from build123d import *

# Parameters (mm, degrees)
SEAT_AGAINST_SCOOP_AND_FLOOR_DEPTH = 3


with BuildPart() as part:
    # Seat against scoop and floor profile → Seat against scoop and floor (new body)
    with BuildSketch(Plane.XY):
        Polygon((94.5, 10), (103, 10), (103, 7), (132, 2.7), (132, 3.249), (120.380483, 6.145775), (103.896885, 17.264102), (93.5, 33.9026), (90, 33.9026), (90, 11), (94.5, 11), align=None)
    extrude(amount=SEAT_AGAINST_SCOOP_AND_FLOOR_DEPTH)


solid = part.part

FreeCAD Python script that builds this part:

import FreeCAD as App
import Part
import Sketcher
from FreeCAD import Vector
Q = App.Units.Quantity

doc = App.newDocument("Part")
body = doc.addObject("PartDesign::Body", "Body")

# Sketch on XY plane
sketch1 = doc.addObject("Sketcher::SketchObject", "Sketch")
body.addObject(sketch1)
sketch1.AttachmentSupport = (doc.XY_Plane, [""])
sketch1.MapMode = "FlatFace"
sketch1.addGeometry(Part.LineSegment(Vector(94.5, 10, 0), Vector(103, 10, 0)), False)
sketch1.addGeometry(Part.LineSegment(Vector(103, 10, 0), Vector(103, 7, 0)), False)
sketch1.addGeometry(Part.LineSegment(Vector(103, 7, 0), Vector(132, 2.7, 0)), False)
sketch1.addGeometry(Part.LineSegment(Vector(132, 2.7, 0), Vector(132, 3.249, 0)), False)
sketch1.addGeometry(Part.LineSegment(Vector(132, 3.249, 0), Vector(120.380483, 6.145775, 0)), False)
sketch1.addGeometry(Part.LineSegment(Vector(120.380483, 6.145775, 0), Vector(103.896885, 17.264102, 0)), False)
sketch1.addGeometry(Part.LineSegment(Vector(103.896885, 17.264102, 0), Vector(93.5, 33.9026, 0)), False)
sketch1.addGeometry(Part.LineSegment(Vector(93.5, 33.9026, 0), Vector(90, 33.9026, 0)), False)
sketch1.addGeometry(Part.LineSegment(Vector(90, 33.9026, 0), Vector(90, 11, 0)), False)
sketch1.addGeometry(Part.LineSegment(Vector(90, 11, 0), Vector(94.5, 11, 0)), False)
sketch1.addGeometry(Part.LineSegment(Vector(94.5, 11, 0), Vector(94.5, 10, 0)), False)
sketch1.addConstraint(Sketcher.Constraint("Coincident", 0, 2, 1, 1))
sketch1.addConstraint(Sketcher.Constraint("Coincident", 1, 2, 2, 1))
sketch1.addConstraint(Sketcher.Constraint("Coincident", 2, 2, 3, 1))
sketch1.addConstraint(Sketcher.Constraint("Coincident", 3, 2, 4, 1))
sketch1.addConstraint(Sketcher.Constraint("Coincident", 4, 2, 5, 1))
sketch1.addConstraint(Sketcher.Constraint("Coincident", 5, 2, 6, 1))
sketch1.addConstraint(Sketcher.Constraint("Coincident", 6, 2, 7, 1))
sketch1.addConstraint(Sketcher.Constraint("Coincident", 7, 2, 8, 1))
sketch1.addConstraint(Sketcher.Constraint("Coincident", 8, 2, 9, 1))
sketch1.addConstraint(Sketcher.Constraint("Coincident", 9, 2, 10, 1))
sketch1.addConstraint(Sketcher.Constraint("Coincident", 10, 2, 0, 1))
sketch1.addConstraint(Sketcher.Constraint("Horizontal", 0))
sketch1.addConstraint(Sketcher.Constraint("Vertical", 1))
sketch1.addConstraint(Sketcher.Constraint("Vertical", 3))
sketch1.addConstraint(Sketcher.Constraint("Horizontal", 7))
sketch1.addConstraint(Sketcher.Constraint("Vertical", 8))
sketch1.addConstraint(Sketcher.Constraint("Horizontal", 9))
sketch1.addConstraint(Sketcher.Constraint("Vertical", 10))
sketch1.addConstraint(Sketcher.Constraint("DistanceY", 1, 2, 1, 1, Q("3 mm")))
sketch1.addConstraint(Sketcher.Constraint("DistanceY", 10, 2, 10, 1, Q("1 mm")))
sketch1.addConstraint(Sketcher.Constraint("Angle", 5, Q("146.000001 deg")))
sketch1.addConstraint(Sketcher.Constraint("Angle", 6, Q("121.999994 deg")))
sketch1.addConstraint(Sketcher.Constraint("DistanceX", 0, 1, 0, 2, Q("8.5 mm")))
sketch1.addConstraint(Sketcher.Constraint("DistanceX", 7, 2, 7, 1, Q("3.5 mm")))
sketch1.addConstraint(Sketcher.Constraint("DistanceX", 9, 1, 9, 2, Q("4.5 mm")))
sketch1.addConstraint(Sketcher.Constraint("DistanceX", -1, 1, 0, 2, Q("103 mm")))
sketch1.addConstraint(Sketcher.Constraint("DistanceY", -1, 1, 0, 2, Q("10 mm")))
sketch1.addConstraint(Sketcher.Constraint("DistanceX", -1, 1, 2, 2, Q("132 mm")))
sketch1.addConstraint(Sketcher.Constraint("DistanceY", -1, 1, 2, 2, Q("2.7 mm")))
sketch1.addConstraint(Sketcher.Constraint("DistanceY", 3, 1, 3, 2, Q("0.549 mm")))
sketch1.addConstraint(Sketcher.Constraint("DistanceY", 8, 2, 8, 1, Q("22.9026 mm")))
sketch1.addConstraint(Sketcher.Constraint("DistanceX", 5, 2, 4, 2, Q("16.483598 mm")))
sketch1.addConstraint(Sketcher.Constraint("Distance", 4, Q("11.975161 mm")))
pad1 = doc.addObject("PartDesign::Pad", "Pad")
body.addObject(pad1)
pad1.Profile = sketch1
pad1.Length = 3

doc.recompute()
